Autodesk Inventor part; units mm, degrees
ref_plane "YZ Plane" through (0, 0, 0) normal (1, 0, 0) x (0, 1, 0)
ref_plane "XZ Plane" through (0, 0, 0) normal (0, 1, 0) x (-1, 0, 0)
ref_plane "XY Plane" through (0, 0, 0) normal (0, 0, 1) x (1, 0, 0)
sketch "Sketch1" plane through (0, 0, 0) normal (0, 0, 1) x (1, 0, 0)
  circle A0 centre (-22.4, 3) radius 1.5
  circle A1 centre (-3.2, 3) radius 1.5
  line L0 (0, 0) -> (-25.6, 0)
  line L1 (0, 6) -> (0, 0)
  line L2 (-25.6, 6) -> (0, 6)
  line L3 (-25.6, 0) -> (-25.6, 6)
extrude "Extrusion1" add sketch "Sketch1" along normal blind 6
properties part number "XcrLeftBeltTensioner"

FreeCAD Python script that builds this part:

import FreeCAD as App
import Part
import Sketcher

doc = App.newDocument("Part")
body = doc.addObject("PartDesign::Body", "Body")

# Sketch on XY plane
sketch1 = body.newObject("Sketcher::SketchObject", "Sketch")
sketch1.AttachmentSupport = (doc.getObject("XY_Plane"), [""])
sketch1.MapMode = "FlatFace"
sketch1.addGeometry(Part.LineSegment(App.Vector(-25.6, 0, 0), App.Vector(0, 0, 0)), False)
sketch1.addGeometry(Part.LineSegment(App.Vector(0, 0, 0), App.Vector(0, 6, 0)), False)
sketch1.addGeometry(Part.LineSegment(App.Vector(0, 6, 0), App.Vector(-25.6, 6, 0)), False)
sketch1.addGeometry(Part.LineSegment(App.Vector(-25.6, 6, 0), App.Vector(-25.6, 0, 0)), False)
sketch1.addGeometry(Part.Circle(App.Vector(-22.4, 3, 0), App.Vector(0, 0, 1), 1.5), False)
sketch1.addGeometry(Part.Circle(App.Vector(-3.2, 3, 0), App.Vector(0, 0, 1), 1.5), False)
sketch1.addConstraint(Sketcher.Constraint("Coincident", 0, 2, 1, 1))
sketch1.addConstraint(Sketcher.Constraint("Coincident", 1, 2, 2, 1))
sketch1.addConstraint(Sketcher.Constraint("Coincident", 2, 2, 3, 1))
sketch1.addConstraint(Sketcher.Constraint("Coincident", 3, 2, 0, 1))
sketch1.addConstraint(Sketcher.Constraint("Horizontal", 0))
sketch1.addConstraint(Sketcher.Constraint("Vertical", 1))
sketch1.addConstraint(Sketcher.Constraint("Horizontal", 2))
sketch1.addConstraint(Sketcher.Constraint("Vertical", 3))
sketch1.addConstraint(Sketcher.Constraint("Coincident", 0, 2, -1, 1))
sketch1.addConstraint(Sketcher.Constraint("Equal", 4, 5))
sketch1.addConstraint(Sketcher.Constraint("Horizontal", 4, 3, 5, 3))
sketch1.addConstraint(Sketcher.Constraint("Diameter", 4, 3.0))
sketch1.addConstraint(Sketcher.Constraint("DistanceY", 1, 1, 1, 2, 6.0))
sketch1.addConstraint(Sketcher.Constraint("DistanceX", 0, 1, 0, 2, 25.6))
sketch1.addConstraint(Sketcher.Constraint("DistanceY", -1, 1, 4, 3, 3.0))
sketch1.addConstraint(Sketcher.Constraint("DistanceX", 4, 3, -1, 1, 22.4))
sketch1.addConstraint(Sketcher.Constraint("DistanceX", 5, 3, -1, 1, 3.2))
pad1 = body.newObject("PartDesign::Pad", "Pad")
pad1.Profile = sketch1
pad1.Length = 6

doc.recompute()
